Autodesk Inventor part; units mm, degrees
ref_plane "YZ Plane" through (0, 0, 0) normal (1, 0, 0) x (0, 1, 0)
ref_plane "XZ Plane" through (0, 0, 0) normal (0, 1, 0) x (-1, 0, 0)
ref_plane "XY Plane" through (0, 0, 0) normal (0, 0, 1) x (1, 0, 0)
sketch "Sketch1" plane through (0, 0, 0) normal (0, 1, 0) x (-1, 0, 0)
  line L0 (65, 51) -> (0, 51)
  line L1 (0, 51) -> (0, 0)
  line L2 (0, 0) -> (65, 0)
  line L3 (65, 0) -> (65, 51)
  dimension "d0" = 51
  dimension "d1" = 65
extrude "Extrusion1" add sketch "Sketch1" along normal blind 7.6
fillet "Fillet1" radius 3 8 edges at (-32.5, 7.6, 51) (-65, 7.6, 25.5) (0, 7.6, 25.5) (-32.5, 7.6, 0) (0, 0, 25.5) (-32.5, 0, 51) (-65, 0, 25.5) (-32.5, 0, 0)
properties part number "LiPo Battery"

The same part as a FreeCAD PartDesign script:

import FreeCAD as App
import Part
import Sketcher

V = App.Vector


def edges_at(feature, points):
    """Names of the edges that pass closest to the given points."""
    edges = feature.Shape.Edges
    near = lambda p: min(range(len(edges)), key=lambda i: edges[i].distToShape(Part.Vertex(*p))[0])
    return sorted({f"Edge{near(p) + 1}" for p in points})


def add_polygon(sketch, points):
    """Adds a closed chain of lines whose ends are joined by coincident constraints."""
    first, n = sketch.GeometryCount, len(points)
    for a, b in zip(points, points[1:] + points[:1]):
        sketch.addGeometry(Part.LineSegment(App.Vector(*a, 0), App.Vector(*b, 0)), False)
    for i in range(n):
        sketch.addConstraint(Sketcher.Constraint("Coincident", first + i, 2, first + (i + 1) % n, 1))

doc = App.newDocument("Part")
body = doc.addObject("PartDesign::Body", "Body")

# Sketch on XZ plane
sketch1 = body.newObject("Sketcher::SketchObject", "Sketch")
sketch1.AttachmentSupport = (doc.getObject("XZ_Plane"), [""])
sketch1.MapMode = "FlatFace"
add_polygon(sketch1, [(-65, 0), (-65, 51), (0, 51), (0, 0)])  # lines 0-3
sketch1.addConstraint(Sketcher.Constraint("Vertical", 0))
sketch1.addConstraint(Sketcher.Constraint("Horizontal", 1))
sketch1.addConstraint(Sketcher.Constraint("Vertical", 2))
sketch1.addConstraint(Sketcher.Constraint("Horizontal", 3))
sketch1.addConstraint(Sketcher.Constraint("Coincident", 2, 2, -1, 1))
sketch1.addConstraint(Sketcher.Constraint("DistanceX", 1, 1, 1, 2, 65.0))
sketch1.addConstraint(Sketcher.Constraint("DistanceY", 0, 1, 0, 2, 51.0))
pad1 = body.newObject("PartDesign::Pad", "Pad")
pad1.Profile = sketch1
pad1.Length = 7.6
pad1.Reversed = True
doc.recompute()

fillet = body.newObject("PartDesign::Fillet", "Fillet")
fillet.Base = (pad1, edges_at(pad1, [
    (-32.5, 7.6, 51),
    (-65, 7.6, 25.5),
    (0, 7.6, 25.5),
    (-32.5, 7.6, 0),
    (0, 0, 25.5),
    (-32.5, 0, 51),
    (-65, 0, 25.5),
    (-32.5, 0, 0),
]))
fillet.Radius = 3

doc.recompute()
